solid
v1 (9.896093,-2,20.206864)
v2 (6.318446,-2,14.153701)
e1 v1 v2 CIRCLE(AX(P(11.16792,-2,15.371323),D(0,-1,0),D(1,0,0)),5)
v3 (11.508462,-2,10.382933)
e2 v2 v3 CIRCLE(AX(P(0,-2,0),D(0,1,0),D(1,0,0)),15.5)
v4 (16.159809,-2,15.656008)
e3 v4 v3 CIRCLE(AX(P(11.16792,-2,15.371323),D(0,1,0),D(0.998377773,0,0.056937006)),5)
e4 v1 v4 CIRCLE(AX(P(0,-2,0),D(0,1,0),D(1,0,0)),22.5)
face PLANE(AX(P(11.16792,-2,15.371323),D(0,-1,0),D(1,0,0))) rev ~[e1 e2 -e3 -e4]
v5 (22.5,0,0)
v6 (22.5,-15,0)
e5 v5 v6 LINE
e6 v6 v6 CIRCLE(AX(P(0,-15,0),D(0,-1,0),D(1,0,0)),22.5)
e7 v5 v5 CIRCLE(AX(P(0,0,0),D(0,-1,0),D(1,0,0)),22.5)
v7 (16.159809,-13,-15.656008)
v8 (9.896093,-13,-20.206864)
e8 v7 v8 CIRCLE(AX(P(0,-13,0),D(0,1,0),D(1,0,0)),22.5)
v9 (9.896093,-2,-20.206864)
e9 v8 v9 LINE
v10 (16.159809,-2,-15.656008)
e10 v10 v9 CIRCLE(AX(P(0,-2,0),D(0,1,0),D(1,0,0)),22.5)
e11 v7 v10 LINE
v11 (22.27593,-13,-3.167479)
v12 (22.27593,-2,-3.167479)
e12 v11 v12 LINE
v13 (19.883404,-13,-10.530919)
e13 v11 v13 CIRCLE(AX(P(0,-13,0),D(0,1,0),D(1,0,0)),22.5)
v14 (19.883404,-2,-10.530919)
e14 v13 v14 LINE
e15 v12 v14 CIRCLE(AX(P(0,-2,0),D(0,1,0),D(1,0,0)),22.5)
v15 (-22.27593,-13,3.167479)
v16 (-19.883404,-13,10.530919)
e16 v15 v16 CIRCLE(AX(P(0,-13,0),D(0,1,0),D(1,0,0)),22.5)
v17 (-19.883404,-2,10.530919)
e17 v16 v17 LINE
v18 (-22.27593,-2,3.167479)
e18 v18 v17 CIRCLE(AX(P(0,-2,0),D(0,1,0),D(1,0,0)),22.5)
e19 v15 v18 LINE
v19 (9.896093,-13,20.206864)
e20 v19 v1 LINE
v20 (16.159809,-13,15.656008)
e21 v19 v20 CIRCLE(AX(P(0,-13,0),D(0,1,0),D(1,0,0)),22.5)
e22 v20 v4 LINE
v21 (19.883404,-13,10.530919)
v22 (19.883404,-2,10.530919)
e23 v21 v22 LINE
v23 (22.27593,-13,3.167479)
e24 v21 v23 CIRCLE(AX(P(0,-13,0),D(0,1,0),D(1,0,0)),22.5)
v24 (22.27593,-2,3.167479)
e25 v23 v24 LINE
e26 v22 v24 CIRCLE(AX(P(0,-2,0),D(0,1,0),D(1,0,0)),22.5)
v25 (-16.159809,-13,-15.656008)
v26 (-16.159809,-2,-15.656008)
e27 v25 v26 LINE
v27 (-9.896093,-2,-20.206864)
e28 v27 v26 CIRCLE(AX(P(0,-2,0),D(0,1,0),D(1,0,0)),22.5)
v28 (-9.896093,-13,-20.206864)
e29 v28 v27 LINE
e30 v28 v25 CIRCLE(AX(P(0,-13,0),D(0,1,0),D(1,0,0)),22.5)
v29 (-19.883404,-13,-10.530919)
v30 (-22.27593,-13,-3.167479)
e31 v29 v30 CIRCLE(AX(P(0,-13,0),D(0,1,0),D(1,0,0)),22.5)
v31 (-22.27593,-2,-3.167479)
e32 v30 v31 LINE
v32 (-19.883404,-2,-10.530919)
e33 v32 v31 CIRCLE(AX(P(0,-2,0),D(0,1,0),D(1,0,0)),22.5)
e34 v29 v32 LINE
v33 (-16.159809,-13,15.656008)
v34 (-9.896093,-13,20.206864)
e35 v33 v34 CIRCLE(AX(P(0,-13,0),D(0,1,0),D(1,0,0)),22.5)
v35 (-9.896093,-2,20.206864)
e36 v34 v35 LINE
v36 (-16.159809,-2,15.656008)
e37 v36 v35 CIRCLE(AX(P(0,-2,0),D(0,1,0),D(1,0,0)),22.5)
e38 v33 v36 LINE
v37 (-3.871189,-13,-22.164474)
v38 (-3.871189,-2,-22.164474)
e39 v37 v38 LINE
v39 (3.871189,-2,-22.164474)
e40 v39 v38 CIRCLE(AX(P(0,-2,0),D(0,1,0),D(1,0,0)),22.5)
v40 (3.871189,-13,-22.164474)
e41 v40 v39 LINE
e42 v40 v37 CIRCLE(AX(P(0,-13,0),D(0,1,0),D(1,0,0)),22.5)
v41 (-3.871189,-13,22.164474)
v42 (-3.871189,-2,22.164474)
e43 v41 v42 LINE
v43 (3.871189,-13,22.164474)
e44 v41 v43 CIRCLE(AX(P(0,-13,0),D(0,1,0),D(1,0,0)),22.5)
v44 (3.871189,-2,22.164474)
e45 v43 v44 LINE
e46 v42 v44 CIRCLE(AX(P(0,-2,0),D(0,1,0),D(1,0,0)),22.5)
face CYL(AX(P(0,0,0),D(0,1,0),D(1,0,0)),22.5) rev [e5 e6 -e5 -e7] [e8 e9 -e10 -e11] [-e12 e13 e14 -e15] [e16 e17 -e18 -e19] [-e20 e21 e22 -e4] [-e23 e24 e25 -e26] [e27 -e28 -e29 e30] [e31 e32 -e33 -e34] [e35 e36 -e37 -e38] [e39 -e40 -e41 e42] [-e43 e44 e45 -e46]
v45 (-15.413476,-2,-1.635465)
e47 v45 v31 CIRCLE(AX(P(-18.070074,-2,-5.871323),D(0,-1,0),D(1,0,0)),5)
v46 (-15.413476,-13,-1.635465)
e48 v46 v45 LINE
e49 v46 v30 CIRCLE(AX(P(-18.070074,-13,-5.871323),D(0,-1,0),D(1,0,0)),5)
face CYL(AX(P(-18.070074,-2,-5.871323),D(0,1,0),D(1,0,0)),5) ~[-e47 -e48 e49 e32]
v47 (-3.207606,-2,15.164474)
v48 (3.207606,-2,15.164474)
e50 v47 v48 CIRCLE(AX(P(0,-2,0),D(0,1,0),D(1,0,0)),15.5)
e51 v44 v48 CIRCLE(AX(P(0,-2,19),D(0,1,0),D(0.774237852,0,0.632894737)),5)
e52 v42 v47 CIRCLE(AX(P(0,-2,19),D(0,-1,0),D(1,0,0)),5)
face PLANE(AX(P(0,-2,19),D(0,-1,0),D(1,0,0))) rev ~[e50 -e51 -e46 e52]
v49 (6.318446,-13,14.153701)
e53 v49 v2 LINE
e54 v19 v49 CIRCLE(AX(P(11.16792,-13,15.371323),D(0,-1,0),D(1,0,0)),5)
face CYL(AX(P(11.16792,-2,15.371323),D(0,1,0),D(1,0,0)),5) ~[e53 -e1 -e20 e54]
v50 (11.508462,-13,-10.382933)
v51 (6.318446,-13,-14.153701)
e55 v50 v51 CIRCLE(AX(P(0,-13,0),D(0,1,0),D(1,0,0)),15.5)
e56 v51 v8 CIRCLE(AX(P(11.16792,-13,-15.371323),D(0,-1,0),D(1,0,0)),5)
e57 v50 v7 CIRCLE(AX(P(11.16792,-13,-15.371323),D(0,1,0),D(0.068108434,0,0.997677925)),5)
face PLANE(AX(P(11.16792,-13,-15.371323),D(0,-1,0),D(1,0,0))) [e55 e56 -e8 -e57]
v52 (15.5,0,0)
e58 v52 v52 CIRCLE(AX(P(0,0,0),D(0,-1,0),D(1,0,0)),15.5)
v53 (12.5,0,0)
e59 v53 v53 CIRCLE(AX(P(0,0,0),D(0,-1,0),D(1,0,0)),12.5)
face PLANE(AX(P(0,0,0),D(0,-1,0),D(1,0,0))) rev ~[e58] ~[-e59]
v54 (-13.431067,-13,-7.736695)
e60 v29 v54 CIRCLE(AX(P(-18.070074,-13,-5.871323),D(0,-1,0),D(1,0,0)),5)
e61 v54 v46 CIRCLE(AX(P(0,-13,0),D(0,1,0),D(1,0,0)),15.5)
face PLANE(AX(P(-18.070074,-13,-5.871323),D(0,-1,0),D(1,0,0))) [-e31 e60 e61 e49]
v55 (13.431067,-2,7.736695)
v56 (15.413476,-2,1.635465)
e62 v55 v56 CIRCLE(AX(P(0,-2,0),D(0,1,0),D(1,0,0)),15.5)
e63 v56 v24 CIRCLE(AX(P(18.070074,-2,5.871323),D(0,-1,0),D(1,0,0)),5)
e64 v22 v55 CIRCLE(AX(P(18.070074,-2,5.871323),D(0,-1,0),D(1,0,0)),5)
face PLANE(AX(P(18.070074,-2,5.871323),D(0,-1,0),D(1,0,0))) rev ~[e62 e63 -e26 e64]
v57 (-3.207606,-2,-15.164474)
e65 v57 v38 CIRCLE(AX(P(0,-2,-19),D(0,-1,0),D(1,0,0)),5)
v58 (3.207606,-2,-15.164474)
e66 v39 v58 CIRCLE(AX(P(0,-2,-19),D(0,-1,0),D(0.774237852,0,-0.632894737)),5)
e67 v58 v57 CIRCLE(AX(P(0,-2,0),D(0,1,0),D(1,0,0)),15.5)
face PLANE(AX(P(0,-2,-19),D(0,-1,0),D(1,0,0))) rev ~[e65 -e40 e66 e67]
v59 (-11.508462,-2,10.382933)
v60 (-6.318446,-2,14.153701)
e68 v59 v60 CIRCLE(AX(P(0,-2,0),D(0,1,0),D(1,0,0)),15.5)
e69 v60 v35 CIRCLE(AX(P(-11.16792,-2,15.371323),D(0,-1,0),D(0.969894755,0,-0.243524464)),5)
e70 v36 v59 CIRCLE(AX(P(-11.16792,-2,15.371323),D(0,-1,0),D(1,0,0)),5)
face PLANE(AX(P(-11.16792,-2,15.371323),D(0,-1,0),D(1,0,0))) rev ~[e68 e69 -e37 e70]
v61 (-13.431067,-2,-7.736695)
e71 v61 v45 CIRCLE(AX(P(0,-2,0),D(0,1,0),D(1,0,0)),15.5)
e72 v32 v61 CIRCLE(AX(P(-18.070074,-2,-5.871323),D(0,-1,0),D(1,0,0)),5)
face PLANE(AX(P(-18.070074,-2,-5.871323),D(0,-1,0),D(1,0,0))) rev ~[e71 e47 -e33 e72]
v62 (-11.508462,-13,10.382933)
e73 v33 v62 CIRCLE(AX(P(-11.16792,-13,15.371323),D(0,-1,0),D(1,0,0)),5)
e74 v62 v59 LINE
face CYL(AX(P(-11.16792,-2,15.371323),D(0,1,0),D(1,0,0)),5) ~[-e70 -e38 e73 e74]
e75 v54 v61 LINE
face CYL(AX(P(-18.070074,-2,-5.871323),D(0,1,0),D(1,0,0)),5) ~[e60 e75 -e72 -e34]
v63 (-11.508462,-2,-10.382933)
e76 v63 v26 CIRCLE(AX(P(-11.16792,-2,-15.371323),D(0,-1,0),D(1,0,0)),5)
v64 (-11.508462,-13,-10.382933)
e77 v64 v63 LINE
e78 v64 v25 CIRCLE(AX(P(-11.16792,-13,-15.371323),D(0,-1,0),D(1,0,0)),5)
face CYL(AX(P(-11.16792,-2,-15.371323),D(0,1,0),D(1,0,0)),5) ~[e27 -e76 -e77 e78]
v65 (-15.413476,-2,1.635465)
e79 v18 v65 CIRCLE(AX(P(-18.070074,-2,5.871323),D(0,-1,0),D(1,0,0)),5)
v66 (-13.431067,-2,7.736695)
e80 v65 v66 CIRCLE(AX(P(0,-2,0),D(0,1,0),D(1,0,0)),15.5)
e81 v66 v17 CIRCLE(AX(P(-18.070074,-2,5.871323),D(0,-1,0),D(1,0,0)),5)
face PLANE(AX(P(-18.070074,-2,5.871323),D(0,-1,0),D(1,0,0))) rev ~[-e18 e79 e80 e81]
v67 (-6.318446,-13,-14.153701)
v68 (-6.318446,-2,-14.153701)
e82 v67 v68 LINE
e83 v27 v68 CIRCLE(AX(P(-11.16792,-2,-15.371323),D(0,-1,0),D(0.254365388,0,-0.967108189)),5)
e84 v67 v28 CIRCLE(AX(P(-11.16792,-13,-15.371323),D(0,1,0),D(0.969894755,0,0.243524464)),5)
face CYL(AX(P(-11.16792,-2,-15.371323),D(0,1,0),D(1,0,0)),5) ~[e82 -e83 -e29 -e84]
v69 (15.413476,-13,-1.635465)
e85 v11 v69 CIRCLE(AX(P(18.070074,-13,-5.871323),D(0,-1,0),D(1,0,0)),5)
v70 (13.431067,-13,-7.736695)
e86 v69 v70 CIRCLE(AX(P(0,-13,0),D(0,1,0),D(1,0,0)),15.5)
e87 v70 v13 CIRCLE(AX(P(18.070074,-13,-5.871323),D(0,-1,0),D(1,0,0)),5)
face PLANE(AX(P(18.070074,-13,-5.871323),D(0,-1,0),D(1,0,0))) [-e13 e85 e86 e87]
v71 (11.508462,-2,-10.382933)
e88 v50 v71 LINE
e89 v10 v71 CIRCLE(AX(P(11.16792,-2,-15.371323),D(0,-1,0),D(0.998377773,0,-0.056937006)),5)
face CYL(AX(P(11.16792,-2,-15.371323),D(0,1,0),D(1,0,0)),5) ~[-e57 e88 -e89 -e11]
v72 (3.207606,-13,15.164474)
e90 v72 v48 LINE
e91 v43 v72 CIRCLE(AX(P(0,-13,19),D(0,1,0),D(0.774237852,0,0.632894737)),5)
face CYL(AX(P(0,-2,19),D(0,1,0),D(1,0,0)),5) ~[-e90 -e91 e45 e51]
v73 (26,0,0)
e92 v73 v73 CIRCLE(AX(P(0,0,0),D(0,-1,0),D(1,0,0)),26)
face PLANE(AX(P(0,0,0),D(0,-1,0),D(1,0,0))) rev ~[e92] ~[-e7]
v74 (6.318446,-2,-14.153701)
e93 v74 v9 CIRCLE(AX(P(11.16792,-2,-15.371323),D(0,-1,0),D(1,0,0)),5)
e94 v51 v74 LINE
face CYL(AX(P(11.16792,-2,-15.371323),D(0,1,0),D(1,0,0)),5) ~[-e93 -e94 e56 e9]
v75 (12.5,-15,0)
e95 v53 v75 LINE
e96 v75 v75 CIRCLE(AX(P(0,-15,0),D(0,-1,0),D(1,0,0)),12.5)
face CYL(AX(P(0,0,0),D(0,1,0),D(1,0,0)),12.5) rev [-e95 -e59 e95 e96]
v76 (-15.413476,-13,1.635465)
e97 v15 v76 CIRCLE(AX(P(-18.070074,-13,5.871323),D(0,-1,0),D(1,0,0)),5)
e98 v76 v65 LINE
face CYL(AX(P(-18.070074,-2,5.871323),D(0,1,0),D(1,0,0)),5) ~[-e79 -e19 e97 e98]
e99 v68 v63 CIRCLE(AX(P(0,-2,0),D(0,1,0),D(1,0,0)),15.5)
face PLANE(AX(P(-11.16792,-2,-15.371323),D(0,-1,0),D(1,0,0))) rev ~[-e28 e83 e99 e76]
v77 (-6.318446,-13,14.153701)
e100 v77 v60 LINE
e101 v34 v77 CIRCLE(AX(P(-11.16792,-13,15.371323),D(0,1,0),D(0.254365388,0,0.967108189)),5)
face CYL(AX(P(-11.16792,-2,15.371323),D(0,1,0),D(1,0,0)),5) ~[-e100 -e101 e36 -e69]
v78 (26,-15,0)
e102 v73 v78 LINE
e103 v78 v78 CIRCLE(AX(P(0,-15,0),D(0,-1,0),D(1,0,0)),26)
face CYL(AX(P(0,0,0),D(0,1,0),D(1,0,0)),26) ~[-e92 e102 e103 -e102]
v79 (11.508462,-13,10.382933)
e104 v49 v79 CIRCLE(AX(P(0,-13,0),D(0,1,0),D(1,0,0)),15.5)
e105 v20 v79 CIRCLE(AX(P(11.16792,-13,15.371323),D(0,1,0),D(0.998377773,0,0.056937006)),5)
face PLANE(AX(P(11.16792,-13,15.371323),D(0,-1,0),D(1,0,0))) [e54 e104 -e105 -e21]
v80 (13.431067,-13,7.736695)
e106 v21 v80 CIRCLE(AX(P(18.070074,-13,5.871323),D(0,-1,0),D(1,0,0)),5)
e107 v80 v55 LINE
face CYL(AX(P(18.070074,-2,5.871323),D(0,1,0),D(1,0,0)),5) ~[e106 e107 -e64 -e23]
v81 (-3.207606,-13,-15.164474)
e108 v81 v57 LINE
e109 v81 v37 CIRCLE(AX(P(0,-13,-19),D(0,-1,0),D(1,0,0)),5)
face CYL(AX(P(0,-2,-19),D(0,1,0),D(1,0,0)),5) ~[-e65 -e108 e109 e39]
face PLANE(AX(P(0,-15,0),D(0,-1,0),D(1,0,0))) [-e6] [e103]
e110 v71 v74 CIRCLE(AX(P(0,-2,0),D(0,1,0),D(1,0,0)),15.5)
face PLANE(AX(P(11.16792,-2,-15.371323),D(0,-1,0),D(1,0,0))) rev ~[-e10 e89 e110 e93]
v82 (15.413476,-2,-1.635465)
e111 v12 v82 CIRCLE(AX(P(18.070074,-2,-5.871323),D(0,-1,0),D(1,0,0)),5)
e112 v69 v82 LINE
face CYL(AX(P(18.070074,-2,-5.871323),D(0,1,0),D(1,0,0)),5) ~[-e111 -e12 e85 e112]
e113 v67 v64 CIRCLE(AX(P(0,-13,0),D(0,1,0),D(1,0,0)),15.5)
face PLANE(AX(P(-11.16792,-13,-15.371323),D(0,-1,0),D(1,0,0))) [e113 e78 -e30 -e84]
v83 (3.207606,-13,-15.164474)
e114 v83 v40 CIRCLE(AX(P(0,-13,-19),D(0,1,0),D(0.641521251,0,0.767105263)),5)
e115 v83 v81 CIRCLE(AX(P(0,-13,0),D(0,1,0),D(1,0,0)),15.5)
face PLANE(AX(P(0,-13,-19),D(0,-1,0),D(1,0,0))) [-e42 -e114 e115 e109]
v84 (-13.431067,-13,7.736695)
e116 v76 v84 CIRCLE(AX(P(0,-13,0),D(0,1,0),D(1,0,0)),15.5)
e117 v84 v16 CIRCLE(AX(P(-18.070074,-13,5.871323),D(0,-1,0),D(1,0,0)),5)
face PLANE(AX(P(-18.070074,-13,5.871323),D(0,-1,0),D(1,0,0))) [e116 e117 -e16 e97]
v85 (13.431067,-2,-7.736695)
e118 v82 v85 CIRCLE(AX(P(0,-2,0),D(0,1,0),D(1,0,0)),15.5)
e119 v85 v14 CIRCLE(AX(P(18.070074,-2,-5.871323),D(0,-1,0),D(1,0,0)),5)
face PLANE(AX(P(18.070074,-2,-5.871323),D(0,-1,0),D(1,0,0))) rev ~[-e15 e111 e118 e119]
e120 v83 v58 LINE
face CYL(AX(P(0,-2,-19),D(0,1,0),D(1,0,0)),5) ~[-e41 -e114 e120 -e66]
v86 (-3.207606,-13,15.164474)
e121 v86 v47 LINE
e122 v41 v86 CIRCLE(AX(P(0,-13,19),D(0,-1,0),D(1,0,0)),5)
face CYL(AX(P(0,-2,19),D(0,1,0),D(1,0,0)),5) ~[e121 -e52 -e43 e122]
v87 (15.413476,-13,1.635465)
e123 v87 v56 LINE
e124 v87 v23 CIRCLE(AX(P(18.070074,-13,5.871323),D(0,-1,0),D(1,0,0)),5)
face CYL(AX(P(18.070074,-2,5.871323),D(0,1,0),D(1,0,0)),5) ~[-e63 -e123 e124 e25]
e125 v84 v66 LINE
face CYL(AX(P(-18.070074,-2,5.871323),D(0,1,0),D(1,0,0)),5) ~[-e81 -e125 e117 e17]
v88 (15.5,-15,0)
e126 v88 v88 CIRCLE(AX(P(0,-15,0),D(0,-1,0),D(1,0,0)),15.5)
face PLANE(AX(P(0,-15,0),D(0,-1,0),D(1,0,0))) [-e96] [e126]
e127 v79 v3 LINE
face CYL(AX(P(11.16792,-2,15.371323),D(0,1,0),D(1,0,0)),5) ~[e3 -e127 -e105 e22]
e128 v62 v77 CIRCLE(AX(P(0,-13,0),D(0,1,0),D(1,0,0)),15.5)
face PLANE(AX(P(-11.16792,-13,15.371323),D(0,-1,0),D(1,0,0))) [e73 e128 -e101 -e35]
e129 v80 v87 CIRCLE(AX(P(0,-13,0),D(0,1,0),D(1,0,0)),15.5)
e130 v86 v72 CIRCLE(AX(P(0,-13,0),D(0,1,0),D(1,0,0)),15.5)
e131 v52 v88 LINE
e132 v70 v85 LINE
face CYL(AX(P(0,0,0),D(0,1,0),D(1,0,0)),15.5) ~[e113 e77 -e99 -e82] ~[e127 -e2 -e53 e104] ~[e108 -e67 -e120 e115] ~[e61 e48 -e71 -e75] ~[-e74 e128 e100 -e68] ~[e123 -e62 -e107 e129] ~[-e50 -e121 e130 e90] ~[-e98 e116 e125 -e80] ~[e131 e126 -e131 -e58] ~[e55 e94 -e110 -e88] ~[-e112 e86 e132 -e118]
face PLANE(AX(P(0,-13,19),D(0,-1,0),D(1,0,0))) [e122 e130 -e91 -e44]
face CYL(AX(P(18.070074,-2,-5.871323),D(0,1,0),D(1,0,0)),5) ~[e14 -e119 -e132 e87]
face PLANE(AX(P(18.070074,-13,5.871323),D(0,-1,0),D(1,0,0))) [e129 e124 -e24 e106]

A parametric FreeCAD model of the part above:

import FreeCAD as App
import Part
import Sketcher
from FreeCAD import Vector
Q = App.Units.Quantity

doc = App.newDocument("Part")
body = doc.addObject("PartDesign::Body", "Body")

# Sketch on XZ plane
sketch1 = body.newObject("Sketcher::SketchObject", "Sketch")
sketch1.AttachmentSupport = (doc.getObject("XZ_Plane"), [""])
sketch1.MapMode = "FlatFace"
sketch1.addGeometry([
    Part.Circle(Vector(0, 0, 0), Vector(0, 0, 1), 16),
    Part.Circle(Vector(0, 0, 0), Vector(0, 0, 1), 12),
], False)
sketch1.addConstraint([
    Sketcher.Constraint("Coincident", 0, 3, -1, 1),
    Sketcher.Constraint("Coincident", 1, 3, -1, 1),
    Sketcher.Constraint("Diameter", 0, Q("31 mm")),
    Sketcher.Constraint("Diameter", 1, Q("25 mm")),
])
pad1 = body.newObject("PartDesign::Pad", "Pad")
pad1.Profile = sketch1
pad1.Length = 15
body2 = doc.addObject("PartDesign::Body", "Body001")

# Sketch on XZ plane
sketch2 = body2.newObject("Sketcher::SketchObject", "Sketch001")
sketch2.AttachmentSupport = (doc.getObject("XZ_Plane001"), [""])
sketch2.MapMode = "FlatFace"
sketch2.addGeometry([
    Part.Circle(Vector(0, 0, 0), Vector(0, 0, 1), 26),
    Part.Circle(Vector(0, 0, 0), Vector(0, 0, 1), 22),
], False)
sketch2.addConstraint([
    Sketcher.Constraint("Coincident", 0, 3, -1, 1),
    Sketcher.Constraint("Coincident", 1, 3, -1, 1),
    Sketcher.Constraint("Diameter", 0, Q("52 mm")),
    Sketcher.Constraint("Diameter", 1, Q("45 mm")),
])
pad2 = body2.newObject("PartDesign::Pad", "Pad001")
pad2.Profile = sketch2
pad2.Length = 15
body3 = doc.addObject("PartDesign::Body", "Body002")

# Sketch on XZ plane
sketch3 = body3.newObject("Sketcher::SketchObject", "Sketch002")
sketch3.AttachmentSupport = (doc.getObject("XZ_Plane002"), [""])
sketch3.MapMode = "FlatFace"
sketch3.addGeometry(Part.Circle(Vector(-74, -38, 0), Vector(0, 0, 1), 40), False)
sketch3.addConstraint([
    Sketcher.Constraint("Diameter", 0, Q("79 mm")),
    Sketcher.Constraint("DistanceX", 0, 3, -1, 1, Q("73.830284 mm")),
    Sketcher.Constraint("DistanceY", 0, 3, -1, 1, Q("37.664898 mm")),
])
pad3 = body3.newObject("PartDesign::Pad", "Pad002")
pad3.Profile = sketch3
pad3.Length = 25
body.AllowCompound = True
doc.recompute()

boolean = body.newObject("PartDesign::Boolean", "Boolean")
boolean.Type = "Fuse"
boolean.addObjects([body2])

# Sketch on XZ plane
sketch4 = body.newObject("Sketcher::SketchObject", "Sketch003")
sketch4.AttachmentSupport = (doc.getObject("XZ_Plane"), [""])
sketch4.MapMode = "FlatFace"
sketch4.AttachmentOffset = App.Placement(Vector(0, 0, 2), App.Rotation())
sketch4.addGeometry([
    Part.Circle(Vector(-11, 15, 0), Vector(0, 0, 1), 5),  # 0
    Part.Circle(Vector(0, 19, 0), Vector(0, 0, 1), 5),  # 1
    Part.Circle(Vector(11, 15, 0), Vector(0, 0, 1), 5),  # 2
    Part.Circle(Vector(18, 6, 0), Vector(0, 0, 1), 5),  # 3
    Part.Circle(Vector(18, -6, 0), Vector(0, 0, 1), 5),  # 4
    Part.Circle(Vector(11, -15, 0), Vector(0, 0, 1), 5),  # 5
    Part.Circle(Vector(0, -19, 0), Vector(0, 0, 1), 5),  # 6
    Part.Circle(Vector(-11, -15, 0), Vector(0, 0, 1), 5),  # 7
    Part.Circle(Vector(-18, -6, 0), Vector(0, 0, 1), 5),  # 8
    Part.Circle(Vector(-18, 6, 0), Vector(0, 0, 1), 5),  # 9
], False)
sketch4.addConstraint([
    Sketcher.Constraint("Equal", 0, 1),
    Sketcher.Constraint("Equal", 1, 2),
    Sketcher.Constraint("Equal", 2, 3),
    Sketcher.Constraint("Equal", 3, 4),
    Sketcher.Constraint("Equal", 4, 5),
    Sketcher.Constraint("Equal", 5, 6),
    Sketcher.Constraint("Equal", 6, 7),
    Sketcher.Constraint("Equal", 7, 8),
    Sketcher.Constraint("Equal", 8, 9),
    Sketcher.Constraint("Symmetric", 0, 3, 5, 3, -1, 1),
    Sketcher.Constraint("Symmetric", 1, 3, 6, 3, -1, 1),
    Sketcher.Constraint("Symmetric", 2, 3, 7, 3, -1, 1),
    Sketcher.Constraint("Symmetric", 3, 3, 8, 3, -1, 1),
    Sketcher.Constraint("Symmetric", 4, 3, 9, 3, -1, 1),
    Sketcher.Constraint("Symmetric", 0, 3, 2, 3, -2),
    Sketcher.Constraint("Symmetric", 4, 3, 8, 3, -2),
    Sketcher.Constraint("PointOnObject", 1, 3, -2),
    Sketcher.Constraint("Diameter", 0, Q("10 mm")),
    Sketcher.Constraint("DistanceY", -1, 1, 1, 3, Q("19 mm")),
    Sketcher.Constraint("DistanceY", 3, 3, 2, 3, Q("9.5 mm")),
    Sketcher.Constraint("DistanceX", 0, 3, -1, 1, Q("11.16792 mm")),
    Sketcher.Constraint("DistanceY", -1, 1, 0, 3, Q("15.371323 mm")),
    Sketcher.Constraint("DistanceX", -1, 1, 3, 3, Q("18.070074 mm")),
])
pad4 = body.newObject("PartDesign::Pad", "Pad003")
pad4.Profile = sketch4
pad4.Length = 11
body3.Visibility = False

doc.recompute()
